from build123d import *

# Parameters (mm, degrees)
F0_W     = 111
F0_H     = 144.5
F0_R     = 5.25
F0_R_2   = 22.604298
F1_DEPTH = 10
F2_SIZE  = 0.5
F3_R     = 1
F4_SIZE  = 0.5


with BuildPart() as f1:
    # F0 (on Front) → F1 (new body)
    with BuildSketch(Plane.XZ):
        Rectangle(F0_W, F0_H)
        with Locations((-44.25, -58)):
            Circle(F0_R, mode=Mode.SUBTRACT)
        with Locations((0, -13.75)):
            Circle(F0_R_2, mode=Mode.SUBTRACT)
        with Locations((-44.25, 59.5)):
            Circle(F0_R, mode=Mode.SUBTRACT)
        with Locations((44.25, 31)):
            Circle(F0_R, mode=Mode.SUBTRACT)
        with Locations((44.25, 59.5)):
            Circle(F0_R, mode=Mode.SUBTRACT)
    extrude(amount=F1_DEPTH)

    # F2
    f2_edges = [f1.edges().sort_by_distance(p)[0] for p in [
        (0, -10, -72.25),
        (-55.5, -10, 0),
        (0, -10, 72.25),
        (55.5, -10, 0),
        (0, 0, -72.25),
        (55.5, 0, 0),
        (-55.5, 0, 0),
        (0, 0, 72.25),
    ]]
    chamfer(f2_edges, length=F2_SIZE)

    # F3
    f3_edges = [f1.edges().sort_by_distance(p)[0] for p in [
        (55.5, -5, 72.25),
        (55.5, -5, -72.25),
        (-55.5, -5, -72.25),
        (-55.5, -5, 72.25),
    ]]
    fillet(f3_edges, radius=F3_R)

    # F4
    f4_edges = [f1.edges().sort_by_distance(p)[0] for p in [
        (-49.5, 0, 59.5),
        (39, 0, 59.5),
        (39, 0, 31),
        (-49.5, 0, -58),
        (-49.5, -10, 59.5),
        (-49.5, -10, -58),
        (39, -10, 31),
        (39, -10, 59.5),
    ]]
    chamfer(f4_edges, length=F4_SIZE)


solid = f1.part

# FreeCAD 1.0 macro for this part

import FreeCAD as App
import Part
import Sketcher

V = App.Vector


def edges_at(feature, points):
    """Names of the edges that pass closest to the given points."""
    edges = feature.Shape.Edges
    near = lambda p: min(range(len(edges)), key=lambda i: edges[i].distToShape(Part.Vertex(*p))[0])
    return sorted({f"Edge{near(p) + 1}" for p in points})


def add_polygon(sketch, points):
    """Adds a closed chain of lines whose ends are joined by coincident constraints."""
    first, n = sketch.GeometryCount, len(points)
    for a, b in zip(points, points[1:] + points[:1]):
        sketch.addGeometry(Part.LineSegment(App.Vector(*a, 0), App.Vector(*b, 0)), False)
    for i in range(n):
        sketch.addConstraint(Sketcher.Constraint("Coincident", first + i, 2, first + (i + 1) % n, 1))

doc = App.newDocument("Part")
body = doc.addObject("PartDesign::Body", "Body")

sketch1 = body.newObject("Sketcher::SketchObject", "Sketch")
sketch1.AttachmentSupport = (doc.getObject("XZ_Plane"), [""])
sketch1.MapMode = "FlatFace"
add_polygon(sketch1, [(-56, 72), (-56, -72), (56, -72), (56, 72)])
sketch1.addGeometry(Part.Circle(V(-44, -58, 0), V(0, 0, 1), 5), False)
sketch1.addGeometry(Part.Circle(V(0, -14, 0), V(0, 0, 1), 23), False)
sketch1.addGeometry(Part.Circle(V(-44, 60, 0), V(0, 0, 1), 5), False)
sketch1.addGeometry(Part.Circle(V(44, 31, 0), V(0, 0, 1), 5), False)
sketch1.addGeometry(Part.Circle(V(44, 60, 0), V(0, 0, 1), 5), False)
sketch1.addConstraint(Sketcher.Constraint("Vertical", 0))
sketch1.addConstraint(Sketcher.Constraint("Horizontal", 1))
sketch1.addConstraint(Sketcher.Constraint("Vertical", 2))
sketch1.addConstraint(Sketcher.Constraint("Horizontal", 3))
sketch1.addConstraint(Sketcher.Constraint("Equal", 4, 6))
sketch1.addConstraint(Sketcher.Constraint("Equal", 6, 7))
sketch1.addConstraint(Sketcher.Constraint("Equal", 7, 8))
sketch1.addConstraint(Sketcher.Constraint("Symmetric", 0, 2, 2, 2, -1, 1))
sketch1.addConstraint(Sketcher.Constraint("Symmetric", 6, 3, 8, 3, -2))
sketch1.addConstraint(Sketcher.Constraint("PointOnObject", 5, 3, -2))
sketch1.addConstraint(Sketcher.Constraint("Vertical", 4, 3, 6, 3))
sketch1.addConstraint(Sketcher.Constraint("Vertical", 7, 3, 8, 3))
sketch1.addConstraint(Sketcher.Constraint("Diameter", 4, 10.5))
sketch1.addConstraint(Sketcher.Constraint("DistanceX", 1, 1, 1, 2, 111.0))
sketch1.addConstraint(Sketcher.Constraint("DistanceY", 0, 2, 0, 1, 144.5))
sketch1.addConstraint(Sketcher.Constraint("DistanceY", 4, 3, -1, 1, 58.0))
sketch1.addConstraint(Sketcher.Constraint("DistanceY", -1, 1, 7, 3, 31.0))
sketch1.addConstraint(Sketcher.Constraint("DistanceY", 5, 3, 2, 2, 86.0))
sketch1.addConstraint(Sketcher.Constraint("DistanceY", -1, 1, 6, 3, 59.5))
sketch1.addConstraint(Sketcher.Constraint("DistanceX", 6, 3, 7, 3, 88.5))
sketch1.addConstraint(Sketcher.Constraint("Diameter", 5, 45.208596))
pad1 = body.newObject("PartDesign::Pad", "Pad")
pad1.Profile = sketch1
pad1.Length = 10
doc.recompute()

chamfer = body.newObject("PartDesign::Chamfer", "Chamfer")
chamfer.Base = (pad1, edges_at(pad1, [
    (0, -10, -72.25),
    (-55.5, -10, 0),
    (0, -10, 72.25),
    (55.5, -10, 0),
    (0, 0, -72.25),
    (55.5, 0, 0),
    (-55.5, 0, 0),
    (0, 0, 72.25),
]))
chamfer.Size = 0.5
doc.recompute()

fillet = body.newObject("PartDesign::Fillet", "Fillet")
fillet.Base = (chamfer, edges_at(chamfer, [
    (55.5, -5, 72.25),
    (55.5, -5, -72.25),
    (-55.5, -5, -72.25),
    (-55.5, -5, 72.25),
]))
fillet.Radius = 1
doc.recompute()

chamfer2 = body.newObject("PartDesign::Chamfer", "Chamfer001")
chamfer2.Base = (fillet, edges_at(fillet, [
    (-49.5, 0, 59.5),
    (39, 0, 59.5),
    (39, 0, 31),
    (-49.5, 0, -58),
    (-49.5, -10, 59.5),
    (-49.5, -10, -58),
    (39, -10, 31),
    (39, -10, 59.5),
]))
chamfer2.Size = 0.5

doc.recompute()
